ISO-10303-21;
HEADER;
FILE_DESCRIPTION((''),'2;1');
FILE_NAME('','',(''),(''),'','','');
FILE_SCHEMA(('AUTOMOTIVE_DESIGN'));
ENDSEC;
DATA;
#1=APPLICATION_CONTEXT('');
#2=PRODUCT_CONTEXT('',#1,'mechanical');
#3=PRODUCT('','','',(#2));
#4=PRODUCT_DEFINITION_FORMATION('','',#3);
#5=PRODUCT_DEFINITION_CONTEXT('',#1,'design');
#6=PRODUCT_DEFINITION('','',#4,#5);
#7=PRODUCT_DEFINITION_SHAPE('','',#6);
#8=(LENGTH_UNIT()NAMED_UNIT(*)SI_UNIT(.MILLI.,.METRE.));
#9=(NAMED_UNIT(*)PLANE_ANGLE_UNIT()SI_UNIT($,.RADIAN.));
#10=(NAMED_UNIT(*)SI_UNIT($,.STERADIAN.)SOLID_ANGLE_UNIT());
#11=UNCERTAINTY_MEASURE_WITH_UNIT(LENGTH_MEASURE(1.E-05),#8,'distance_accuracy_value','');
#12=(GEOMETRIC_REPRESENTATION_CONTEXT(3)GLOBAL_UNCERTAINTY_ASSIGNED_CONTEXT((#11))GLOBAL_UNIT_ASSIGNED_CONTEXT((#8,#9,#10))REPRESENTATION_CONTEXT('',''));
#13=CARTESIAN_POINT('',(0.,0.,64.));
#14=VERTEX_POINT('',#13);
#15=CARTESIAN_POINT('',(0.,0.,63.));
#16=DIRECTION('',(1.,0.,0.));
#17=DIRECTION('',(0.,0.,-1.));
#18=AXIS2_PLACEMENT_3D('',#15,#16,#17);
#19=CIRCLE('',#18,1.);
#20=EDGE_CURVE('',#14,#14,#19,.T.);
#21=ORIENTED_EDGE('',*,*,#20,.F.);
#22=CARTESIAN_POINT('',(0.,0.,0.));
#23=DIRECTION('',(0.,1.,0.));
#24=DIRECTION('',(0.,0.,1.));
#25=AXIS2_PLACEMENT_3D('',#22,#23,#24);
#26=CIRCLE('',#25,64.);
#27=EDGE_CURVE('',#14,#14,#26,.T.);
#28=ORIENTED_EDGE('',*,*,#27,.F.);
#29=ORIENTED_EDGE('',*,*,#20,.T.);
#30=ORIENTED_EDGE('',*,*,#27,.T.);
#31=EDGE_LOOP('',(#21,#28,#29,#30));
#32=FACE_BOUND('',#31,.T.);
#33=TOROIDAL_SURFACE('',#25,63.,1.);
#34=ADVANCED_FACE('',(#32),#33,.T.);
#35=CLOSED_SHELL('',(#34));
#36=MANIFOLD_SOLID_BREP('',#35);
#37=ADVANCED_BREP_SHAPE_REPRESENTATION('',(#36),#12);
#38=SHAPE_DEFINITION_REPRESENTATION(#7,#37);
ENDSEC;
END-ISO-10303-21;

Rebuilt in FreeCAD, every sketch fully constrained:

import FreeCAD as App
import Part
import Sketcher

doc = App.newDocument("Part")
params = doc.addObject("Spreadsheet::Sheet", "Params")
for row, (alias, value) in enumerate([
    ("sketch1_diameter", "2 mm"),
    ("sketch2_diameter", "126 mm"),
], start=1):
    params.set(f"A{row}", alias)
    params.set(f"B{row}", "=" + value)
    params.setAlias(f"B{row}", alias)

body = doc.addObject("PartDesign::Body", "Body")

# Sketch on XY plane
sketch1 = body.newObject("Sketcher::SketchObject", "Sketch")
sketch1.AttachmentSupport = (doc.getObject("XY_Plane"), [""])
sketch1.MapMode = "FlatFace"
sketch1.addGeometry(Part.Circle(App.Vector(63, 0, 0), App.Vector(0, 0, 1), 1), False)
sketch1.addConstraint([
    Sketcher.Constraint("PointOnObject", 0, 3, -1),
    Sketcher.Constraint("Diameter", 0, 2.0),
    Sketcher.Constraint("DistanceX", -1, 1, 0, 3, 63.0),
])
sketch1.setExpression("Constraints[1]", "Params.sketch1_diameter")

# Sketch on XZ plane
sketch2 = body.newObject("Sketcher::SketchObject", "Sketch001")
sketch2.AttachmentSupport = (doc.getObject("XZ_Plane"), [""])
sketch2.MapMode = "FlatFace"
sketch2.addGeometry(Part.Circle(App.Vector(0, 0, 0), App.Vector(0, 0, 1), 63), False)
sketch2.addConstraint([
    Sketcher.Constraint("Coincident", 0, 3, -1, 1),
    Sketcher.Constraint("Diameter", 0, 126.0),
])
sketch2.setExpression("Constraints[1]", "Params.sketch2_diameter")
doc.recompute()

additivepipe = body.newObject("PartDesign::AdditivePipe", "AdditivePipe")
additivepipe.Profile = sketch1
additivepipe.Spine = (sketch2, ["Edge1"])

doc.recompute()
